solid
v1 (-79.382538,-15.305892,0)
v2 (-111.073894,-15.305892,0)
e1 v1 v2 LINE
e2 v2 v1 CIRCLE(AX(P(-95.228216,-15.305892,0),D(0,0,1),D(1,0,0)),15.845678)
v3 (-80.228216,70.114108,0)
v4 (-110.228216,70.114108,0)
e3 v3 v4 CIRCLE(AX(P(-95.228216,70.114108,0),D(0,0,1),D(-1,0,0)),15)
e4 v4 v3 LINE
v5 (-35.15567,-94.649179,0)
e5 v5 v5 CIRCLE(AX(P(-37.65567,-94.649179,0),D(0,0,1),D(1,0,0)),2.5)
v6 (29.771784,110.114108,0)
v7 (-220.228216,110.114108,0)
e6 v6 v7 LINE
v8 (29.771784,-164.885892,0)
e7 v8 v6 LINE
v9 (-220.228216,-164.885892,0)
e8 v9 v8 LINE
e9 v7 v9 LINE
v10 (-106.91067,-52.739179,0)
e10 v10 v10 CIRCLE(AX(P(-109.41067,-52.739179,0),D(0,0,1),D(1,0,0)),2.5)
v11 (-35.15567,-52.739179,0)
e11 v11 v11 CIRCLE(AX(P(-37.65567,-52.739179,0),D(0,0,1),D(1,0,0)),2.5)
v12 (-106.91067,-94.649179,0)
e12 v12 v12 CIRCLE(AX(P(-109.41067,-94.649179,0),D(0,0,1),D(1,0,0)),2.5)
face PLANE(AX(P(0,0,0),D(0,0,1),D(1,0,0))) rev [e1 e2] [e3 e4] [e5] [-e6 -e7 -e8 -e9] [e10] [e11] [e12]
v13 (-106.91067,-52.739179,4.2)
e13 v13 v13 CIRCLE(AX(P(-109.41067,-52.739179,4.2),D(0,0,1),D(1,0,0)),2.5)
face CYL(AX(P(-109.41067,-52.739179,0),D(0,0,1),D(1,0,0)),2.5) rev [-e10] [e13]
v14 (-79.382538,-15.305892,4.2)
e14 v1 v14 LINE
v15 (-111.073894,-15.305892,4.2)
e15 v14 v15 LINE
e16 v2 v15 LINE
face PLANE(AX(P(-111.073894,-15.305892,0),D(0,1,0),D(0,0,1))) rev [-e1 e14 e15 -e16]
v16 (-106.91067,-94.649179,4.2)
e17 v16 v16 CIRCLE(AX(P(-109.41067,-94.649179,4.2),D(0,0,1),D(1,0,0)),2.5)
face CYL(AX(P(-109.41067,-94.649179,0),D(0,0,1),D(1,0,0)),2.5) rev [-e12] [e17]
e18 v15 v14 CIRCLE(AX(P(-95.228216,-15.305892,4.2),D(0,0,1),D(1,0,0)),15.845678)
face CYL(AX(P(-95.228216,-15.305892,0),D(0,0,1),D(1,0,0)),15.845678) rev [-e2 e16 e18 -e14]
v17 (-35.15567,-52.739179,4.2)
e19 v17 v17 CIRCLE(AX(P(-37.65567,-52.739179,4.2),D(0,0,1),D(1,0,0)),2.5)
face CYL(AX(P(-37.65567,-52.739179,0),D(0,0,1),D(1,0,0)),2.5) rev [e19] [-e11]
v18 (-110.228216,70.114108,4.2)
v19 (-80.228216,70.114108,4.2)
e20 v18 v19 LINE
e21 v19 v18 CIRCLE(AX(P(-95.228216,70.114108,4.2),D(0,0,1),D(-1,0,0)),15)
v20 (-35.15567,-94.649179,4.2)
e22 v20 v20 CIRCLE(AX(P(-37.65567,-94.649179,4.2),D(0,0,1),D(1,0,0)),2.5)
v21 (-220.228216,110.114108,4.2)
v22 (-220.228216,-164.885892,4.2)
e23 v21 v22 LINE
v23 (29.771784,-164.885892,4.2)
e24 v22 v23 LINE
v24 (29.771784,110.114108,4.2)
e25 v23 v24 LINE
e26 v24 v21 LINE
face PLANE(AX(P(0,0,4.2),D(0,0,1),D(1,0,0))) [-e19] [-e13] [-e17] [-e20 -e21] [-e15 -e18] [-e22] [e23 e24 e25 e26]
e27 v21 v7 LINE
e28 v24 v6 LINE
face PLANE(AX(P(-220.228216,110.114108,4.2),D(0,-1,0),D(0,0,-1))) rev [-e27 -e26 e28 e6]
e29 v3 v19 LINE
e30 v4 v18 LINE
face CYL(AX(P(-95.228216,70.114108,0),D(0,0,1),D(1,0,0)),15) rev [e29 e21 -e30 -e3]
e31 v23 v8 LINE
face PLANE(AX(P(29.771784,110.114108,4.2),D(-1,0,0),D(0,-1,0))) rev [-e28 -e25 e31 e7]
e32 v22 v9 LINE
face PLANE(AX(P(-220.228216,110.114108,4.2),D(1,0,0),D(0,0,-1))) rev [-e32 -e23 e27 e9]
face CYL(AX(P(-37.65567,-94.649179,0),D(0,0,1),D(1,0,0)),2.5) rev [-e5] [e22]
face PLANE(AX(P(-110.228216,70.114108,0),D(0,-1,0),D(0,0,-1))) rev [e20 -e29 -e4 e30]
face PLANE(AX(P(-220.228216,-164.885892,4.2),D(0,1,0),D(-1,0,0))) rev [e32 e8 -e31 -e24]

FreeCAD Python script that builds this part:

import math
import FreeCAD as App
import Part
import Sketcher
from FreeCAD import Vector
Q = App.Units.Quantity

doc = App.newDocument("Part")
body = doc.addObject("PartDesign::Body", "Body")

# Sketch on XY plane
sketch1 = body.newObject("Sketcher::SketchObject", "Sketch")
sketch1.AttachmentSupport = (doc.getObject("XY_Plane"), [""])
sketch1.MapMode = "FlatFace"
sketch1.addGeometry([
    Part.LineSegment(Vector(-220, 110, 0), Vector(-220, -165, 0)),
    Part.LineSegment(Vector(-220, -165, 0), Vector(30, -165, 0)),
    Part.LineSegment(Vector(30, -165, 0), Vector(30, 110, 0)),
    Part.LineSegment(Vector(30, 110, 0), Vector(-220, 110, 0)),
], False)
sketch1.addConstraint([
    Sketcher.Constraint("Coincident", 0, 2, 1, 1),
    Sketcher.Constraint("Coincident", 1, 2, 2, 1),
    Sketcher.Constraint("Coincident", 2, 2, 3, 1),
    Sketcher.Constraint("Coincident", 3, 2, 0, 1),
    Sketcher.Constraint("Vertical", 0),
    Sketcher.Constraint("Horizontal", 1),
    Sketcher.Constraint("Vertical", 2),
    Sketcher.Constraint("Horizontal", 3),
    Sketcher.Constraint("DistanceX", 1, 1, 1, 2, Q("250 mm")),
    Sketcher.Constraint("DistanceY", 0, 2, 0, 1, Q("275 mm")),
    Sketcher.Constraint("DistanceX", 0, 2, -1, 1, Q("220.228216 mm")),
    Sketcher.Constraint("DistanceY", 0, 2, -1, 1, Q("164.885892 mm")),
])
pad1 = body.newObject("PartDesign::Pad", "Pad")
pad1.Profile = sketch1
pad1.Length = 4.2

# Sketch on XY plane
sketch2 = body.newObject("Sketcher::SketchObject", "Sketch001")
sketch2.AttachmentSupport = (doc.getObject("XY_Plane"), [""])
sketch2.MapMode = "FlatFace"
sketch2.AttachmentOffset = App.Placement(Vector(0, 0, 4.2), App.Rotation())
sketch2.addGeometry([
    Part.Circle(Vector(-37.7, -94.6, 0), Vector(0, 0, 1), 2.5),  # 0
    Part.Circle(Vector(-37.7, -52.7, 0), Vector(0, 0, 1), 2.5),  # 1
    Part.Circle(Vector(-109.4, -94.6, 0), Vector(0, 0, 1), 2.5),  # 2
    Part.Circle(Vector(-109.4, -52.7, 0), Vector(0, 0, 1), 2.5),  # 3
    Part.LineSegment(Vector(-110.2, 70.1, 0), Vector(-80.2, 70.1, 0)),  # 4
    Part.ArcOfCircle(Part.Circle(Vector(-95.2, 70.1, 0), Vector(0, 0, 1), 15), math.radians(0), math.radians(180)),  # 5
    Part.LineSegment(Vector(-79.4, -15.3, 0), Vector(-111.1, -15.3, 0)),  # 6
    Part.ArcOfCircle(Part.Circle(Vector(-95.2, -15.3, 0), Vector(0, 0, 1), 15.8), math.radians(180), math.radians(360)),  # 7
], False)
sketch2.addConstraint([
    Sketcher.Constraint("Coincident", 4, 1, 5, 2),
    Sketcher.Constraint("Coincident", 5, 1, 4, 2),
    Sketcher.Constraint("Coincident", 6, 1, 7, 2),
    Sketcher.Constraint("Coincident", 7, 1, 6, 2),
    Sketcher.Constraint("Horizontal", 4),
    Sketcher.Constraint("Horizontal", 6),
    Sketcher.Constraint("Equal", 0, 1),
    Sketcher.Constraint("Equal", 1, 2),
    Sketcher.Constraint("Equal", 2, 3),
    Sketcher.Constraint("Horizontal", 0, 3, 2, 3),
    Sketcher.Constraint("Horizontal", 1, 3, 3, 3),
    Sketcher.Constraint("Horizontal", 5, 3, 4, 1),
    Sketcher.Constraint("Horizontal", 7, 3, 6, 1),
    Sketcher.Constraint("Vertical", 0, 3, 1, 3),
    Sketcher.Constraint("Vertical", 2, 3, 3, 3),
    Sketcher.Constraint("Vertical", 5, 3, 7, 3),
    Sketcher.Constraint("Diameter", 0, Q("5 mm")),
    Sketcher.Constraint("Radius", 5, Q("15 mm")),
    Sketcher.Constraint("Radius", 7, Q("15.845678 mm")),
    Sketcher.Constraint("DistanceY", 0, 3, 1, 3, Q("41.91 mm")),
    Sketcher.Constraint("DistanceY", 7, 3, 5, 3, Q("85.42 mm")),
    Sketcher.Constraint("DistanceX", 2, 3, 0, 3, Q("71.755 mm")),
    Sketcher.Constraint("DistanceX", 0, 3, -1, 1, Q("37.65567 mm")),
    Sketcher.Constraint("DistanceY", 0, 3, -1, 1, Q("94.649179 mm")),
    Sketcher.Constraint("DistanceX", 5, 3, -1, 1, Q("95.228216 mm")),
    Sketcher.Constraint("DistanceY", -1, 1, 5, 3, Q("70.114108 mm")),
])
pocket1 = body.newObject("PartDesign::Pocket", "Pocket")
pocket1.Profile = sketch2
pocket1.Type = "ThroughAll"

doc.recompute()
